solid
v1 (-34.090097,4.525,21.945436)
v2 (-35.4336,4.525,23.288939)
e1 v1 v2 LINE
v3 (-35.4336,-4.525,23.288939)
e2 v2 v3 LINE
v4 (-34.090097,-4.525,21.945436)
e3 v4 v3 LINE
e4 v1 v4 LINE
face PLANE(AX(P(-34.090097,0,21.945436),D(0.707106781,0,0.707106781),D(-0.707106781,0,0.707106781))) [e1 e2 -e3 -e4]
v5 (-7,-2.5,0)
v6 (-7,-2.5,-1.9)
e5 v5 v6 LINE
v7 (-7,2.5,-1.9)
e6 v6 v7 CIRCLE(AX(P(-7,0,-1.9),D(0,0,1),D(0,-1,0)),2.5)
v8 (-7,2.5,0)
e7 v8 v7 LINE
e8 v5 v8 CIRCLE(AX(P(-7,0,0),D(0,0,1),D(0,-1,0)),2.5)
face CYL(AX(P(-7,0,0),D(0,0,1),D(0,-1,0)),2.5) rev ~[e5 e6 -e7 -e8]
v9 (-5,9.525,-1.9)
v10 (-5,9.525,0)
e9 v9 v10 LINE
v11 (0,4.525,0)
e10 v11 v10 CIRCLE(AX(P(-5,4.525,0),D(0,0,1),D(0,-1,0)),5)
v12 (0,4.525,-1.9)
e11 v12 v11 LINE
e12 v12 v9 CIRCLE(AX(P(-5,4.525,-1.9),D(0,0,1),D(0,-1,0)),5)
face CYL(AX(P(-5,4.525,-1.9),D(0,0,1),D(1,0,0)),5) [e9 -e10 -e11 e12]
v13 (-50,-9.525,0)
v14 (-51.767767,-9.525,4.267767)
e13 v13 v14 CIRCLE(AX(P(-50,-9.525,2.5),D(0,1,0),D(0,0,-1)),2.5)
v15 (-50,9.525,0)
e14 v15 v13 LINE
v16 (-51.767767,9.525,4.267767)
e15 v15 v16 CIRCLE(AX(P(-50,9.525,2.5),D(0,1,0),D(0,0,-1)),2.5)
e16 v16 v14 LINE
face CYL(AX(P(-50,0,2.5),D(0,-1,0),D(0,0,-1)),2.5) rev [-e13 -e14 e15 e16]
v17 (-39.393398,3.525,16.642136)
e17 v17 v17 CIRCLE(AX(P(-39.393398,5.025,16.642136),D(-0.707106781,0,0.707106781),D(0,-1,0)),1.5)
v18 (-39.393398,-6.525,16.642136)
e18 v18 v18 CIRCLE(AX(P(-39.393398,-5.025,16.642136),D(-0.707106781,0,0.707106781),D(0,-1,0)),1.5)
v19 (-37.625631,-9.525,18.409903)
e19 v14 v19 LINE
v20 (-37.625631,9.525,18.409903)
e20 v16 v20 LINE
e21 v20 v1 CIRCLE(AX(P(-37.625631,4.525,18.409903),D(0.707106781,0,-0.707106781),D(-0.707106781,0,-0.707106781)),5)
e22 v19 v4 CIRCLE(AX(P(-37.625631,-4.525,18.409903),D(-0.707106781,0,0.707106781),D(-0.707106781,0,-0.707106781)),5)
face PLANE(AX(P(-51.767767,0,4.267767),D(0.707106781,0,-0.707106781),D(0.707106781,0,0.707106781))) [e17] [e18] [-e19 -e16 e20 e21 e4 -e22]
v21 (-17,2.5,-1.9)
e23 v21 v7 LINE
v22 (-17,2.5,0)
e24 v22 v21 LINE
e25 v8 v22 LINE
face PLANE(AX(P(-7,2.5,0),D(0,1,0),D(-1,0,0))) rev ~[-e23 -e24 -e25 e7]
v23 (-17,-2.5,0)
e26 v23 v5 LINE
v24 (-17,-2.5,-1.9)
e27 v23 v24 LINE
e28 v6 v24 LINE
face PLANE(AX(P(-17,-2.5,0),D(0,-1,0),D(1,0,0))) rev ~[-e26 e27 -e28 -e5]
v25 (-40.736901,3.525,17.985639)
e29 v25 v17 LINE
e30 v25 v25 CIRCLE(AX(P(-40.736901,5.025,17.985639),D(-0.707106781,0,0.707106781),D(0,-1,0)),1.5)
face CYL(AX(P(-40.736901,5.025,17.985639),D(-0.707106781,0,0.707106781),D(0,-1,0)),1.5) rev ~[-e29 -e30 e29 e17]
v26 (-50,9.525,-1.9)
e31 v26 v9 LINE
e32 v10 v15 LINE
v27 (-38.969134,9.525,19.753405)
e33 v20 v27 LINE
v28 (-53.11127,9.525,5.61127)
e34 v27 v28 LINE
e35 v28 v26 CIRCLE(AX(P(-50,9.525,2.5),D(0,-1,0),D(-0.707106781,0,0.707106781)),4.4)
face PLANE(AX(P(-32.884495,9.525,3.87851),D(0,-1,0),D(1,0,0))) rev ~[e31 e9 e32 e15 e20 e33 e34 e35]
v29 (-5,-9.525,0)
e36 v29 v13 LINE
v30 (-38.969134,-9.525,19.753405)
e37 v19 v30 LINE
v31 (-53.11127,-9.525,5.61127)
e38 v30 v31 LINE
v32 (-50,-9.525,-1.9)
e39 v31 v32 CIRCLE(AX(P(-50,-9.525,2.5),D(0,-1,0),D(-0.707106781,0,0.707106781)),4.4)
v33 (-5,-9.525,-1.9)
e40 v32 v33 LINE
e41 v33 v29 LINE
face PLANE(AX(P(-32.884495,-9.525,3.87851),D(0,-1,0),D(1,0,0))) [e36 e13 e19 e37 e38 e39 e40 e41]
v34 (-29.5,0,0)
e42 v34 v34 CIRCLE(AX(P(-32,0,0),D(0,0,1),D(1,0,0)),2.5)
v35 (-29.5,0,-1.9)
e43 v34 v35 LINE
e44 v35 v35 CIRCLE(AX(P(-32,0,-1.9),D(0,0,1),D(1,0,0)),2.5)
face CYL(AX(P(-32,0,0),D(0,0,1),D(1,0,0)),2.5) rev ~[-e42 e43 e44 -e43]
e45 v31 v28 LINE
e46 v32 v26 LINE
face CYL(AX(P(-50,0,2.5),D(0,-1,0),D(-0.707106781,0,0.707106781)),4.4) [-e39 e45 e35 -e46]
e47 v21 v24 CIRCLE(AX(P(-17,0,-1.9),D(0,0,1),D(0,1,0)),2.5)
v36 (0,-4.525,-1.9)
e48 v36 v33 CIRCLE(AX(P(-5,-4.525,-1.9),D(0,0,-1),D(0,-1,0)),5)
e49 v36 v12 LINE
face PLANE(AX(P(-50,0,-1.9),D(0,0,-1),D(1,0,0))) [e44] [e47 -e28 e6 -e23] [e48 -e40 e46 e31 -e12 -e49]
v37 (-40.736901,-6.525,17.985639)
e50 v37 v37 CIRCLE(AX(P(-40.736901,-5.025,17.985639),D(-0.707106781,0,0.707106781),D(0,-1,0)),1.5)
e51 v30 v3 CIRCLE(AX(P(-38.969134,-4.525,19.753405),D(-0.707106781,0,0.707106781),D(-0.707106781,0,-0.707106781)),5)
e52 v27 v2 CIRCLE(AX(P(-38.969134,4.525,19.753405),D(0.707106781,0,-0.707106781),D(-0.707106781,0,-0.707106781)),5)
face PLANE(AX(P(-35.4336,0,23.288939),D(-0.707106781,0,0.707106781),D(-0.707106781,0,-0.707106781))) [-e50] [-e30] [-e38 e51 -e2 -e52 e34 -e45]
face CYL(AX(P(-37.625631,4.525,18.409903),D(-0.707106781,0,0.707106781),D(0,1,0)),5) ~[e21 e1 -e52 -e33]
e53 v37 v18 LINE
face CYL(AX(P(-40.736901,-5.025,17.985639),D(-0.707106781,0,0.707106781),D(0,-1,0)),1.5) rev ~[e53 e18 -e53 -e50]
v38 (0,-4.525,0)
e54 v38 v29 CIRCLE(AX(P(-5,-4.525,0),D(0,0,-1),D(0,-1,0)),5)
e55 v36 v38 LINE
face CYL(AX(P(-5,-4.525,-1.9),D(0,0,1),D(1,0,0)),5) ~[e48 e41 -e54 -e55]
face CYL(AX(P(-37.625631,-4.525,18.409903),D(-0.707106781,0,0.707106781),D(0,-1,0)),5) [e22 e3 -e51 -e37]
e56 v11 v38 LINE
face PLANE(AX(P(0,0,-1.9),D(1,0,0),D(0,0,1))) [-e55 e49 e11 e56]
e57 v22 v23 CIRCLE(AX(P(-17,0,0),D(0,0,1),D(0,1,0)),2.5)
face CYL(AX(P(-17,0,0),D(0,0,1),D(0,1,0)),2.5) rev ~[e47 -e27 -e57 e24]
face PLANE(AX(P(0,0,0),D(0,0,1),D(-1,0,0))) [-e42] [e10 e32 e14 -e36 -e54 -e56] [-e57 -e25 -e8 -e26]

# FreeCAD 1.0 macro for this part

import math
import FreeCAD as App
import Part
import Sketcher

V = App.Vector
Q = App.Units.Quantity


def edges_at(feature, points):
    """Names of the edges that pass closest to the given points."""
    edges = feature.Shape.Edges
    near = lambda p: min(range(len(edges)), key=lambda i: edges[i].distToShape(Part.Vertex(*p))[0])
    return sorted({f"Edge{near(p) + 1}" for p in points})

doc = App.newDocument("Part")
params = doc.addObject("Spreadsheet::Sheet", "Params")
for row, (alias, value) in enumerate([
    ("sketch1_radius", "2.5 mm"),
    ("sketch1_radius2", "4.4 mm"),
    ("sketch1_width", "50 mm"),
    ("sketch1_length", "25 mm"),
    ("pad1_length", "19.05 mm"),
    ("sketch2_diameter", "5 mm"),
    ("sketch2_width", "10 mm"),
    ("pocket1_length", "25 mm"),
    ("sketch3_diameter", "3 mm"),
    ("pocket2_length", "1.9 mm"),
    ("fillet_radius", "5 mm"),
], start=1):
    params.set(f"A{row}", alias)
    params.set(f"B{row}", "=" + value)
    params.setAlias(f"B{row}", alias)

body = doc.addObject("PartDesign::Body", "Body")

sketch1 = body.newObject("Sketcher::SketchObject", "Sketch")
sketch1.AttachmentSupport = (doc.getObject("XZ_Plane"), [""])
sketch1.MapMode = "FlatFace"
sketch1.addGeometry([
    Part.LineSegment(V(0, -1.9, 0), V(0, 0, 0)),
    Part.LineSegment(V(0, 0, 0), V(-50, 0, 0)),
    Part.ArcOfCircle(Part.Circle(V(-50, 2.5, 0), V(0, 0, 1), 2.5), math.radians(135), math.radians(270)),
    Part.LineSegment(V(-51.8, 4.3, 0), V(-34.1, 21.9, 0)),
    Part.LineSegment(V(-34.1, 21.9, 0), V(-35.4, 23.3, 0)),
    Part.LineSegment(V(-35.4, 23.3, 0), V(-53.1, 5.6, 0)),
    Part.ArcOfCircle(Part.Circle(V(-50, 2.5, 0), V(0, 0, 1), 4.4), math.radians(135), math.radians(270)),
    Part.LineSegment(V(-50, -1.9, 0), V(0, -1.9, 0)),
], False)
sketch1.addConstraint([
    Sketcher.Constraint("Coincident", 0, 2, 1, 1),
    Sketcher.Constraint("Tangent", 1, 2, 2, 2),
    Sketcher.Constraint("Tangent", 2, 1, 3, 1),
    Sketcher.Constraint("Coincident", 3, 2, 4, 1),
    Sketcher.Constraint("Coincident", 4, 2, 5, 1),
    Sketcher.Constraint("Tangent", 5, 2, 6, 1),
    Sketcher.Constraint("Tangent", 6, 2, 7, 1),
    Sketcher.Constraint("Coincident", 7, 2, 0, 1),
    Sketcher.Constraint("Vertical", 0),
    Sketcher.Constraint("Horizontal", 1),
    Sketcher.Constraint("Horizontal", 7),
    Sketcher.Constraint("Coincident", 0, 2, -1, 1),
    Sketcher.Constraint("Coincident", 6, 3, 2, 3),
    Sketcher.Constraint("Perpendicular", 3, 4),
    Sketcher.Constraint("Perpendicular", 4, 5),
    Sketcher.Constraint("Radius", 2, 2.5),
    Sketcher.Constraint("Radius", 6, 4.4),
    Sketcher.Constraint("DistanceX", 1, 2, 1, 1, 50.0),
    Sketcher.Constraint("Angle", 3, Q("45 deg")),
    Sketcher.Constraint("Distance", 3, 25.0),
])
sketch1.setExpression("Constraints[15]", "Params.sketch1_radius")
sketch1.setExpression("Constraints[16]", "Params.sketch1_radius2")
sketch1.setExpression("Constraints[17]", "Params.sketch1_width")
sketch1.setExpression("Constraints[19]", "Params.sketch1_length")
pad1 = body.newObject("PartDesign::Pad", "Pad")
pad1.Profile = sketch1
pad1.setExpression("Length", "Params.pad1_length")
pad1.Midplane = True

sketch2 = body.newObject("Sketcher::SketchObject", "Sketch001")
sketch2.AttachmentSupport = (doc.getObject("XY_Plane"), [""])
sketch2.MapMode = "FlatFace"
sketch2.addGeometry([
    Part.Circle(V(-32, 0, 0), V(0, 0, 1), 2.5),
    Part.LineSegment(V(-17, -2.5, 0), V(-7, -2.5, 0)),
    Part.ArcOfCircle(Part.Circle(V(-7, 0, 0), V(0, 0, 1), 2.5), math.radians(-90), math.radians(90)),
    Part.LineSegment(V(-7, 2.5, 0), V(-17, 2.5, 0)),
    Part.ArcOfCircle(Part.Circle(V(-17, 0, 0), V(0, 0, 1), 2.5), math.radians(90), math.radians(270)),
], False)
sketch2.addConstraint([
    Sketcher.Constraint("Tangent", 1, 2, 2, 1),
    Sketcher.Constraint("Tangent", 2, 2, 3, 1),
    Sketcher.Constraint("Tangent", 3, 2, 4, 1),
    Sketcher.Constraint("Tangent", 4, 2, 1, 1),
    Sketcher.Constraint("Horizontal", 1),
    Sketcher.Constraint("Horizontal", 3),
    Sketcher.Constraint("Equal", 0, 2),
    Sketcher.Constraint("PointOnObject", 0, 3, -1),
    Sketcher.Constraint("PointOnObject", 2, 3, -1),
    Sketcher.Constraint("Diameter", 0, 5.0),
    Sketcher.Constraint("DistanceX", 1, 1, 1, 2, 10.0),
    Sketcher.Constraint("DistanceX", 0, 3, -1, 1, 32.0),
    Sketcher.Constraint("DistanceX", 2, 3, -1, 1, 7.0),
])
sketch2.setExpression("Constraints[9]", "Params.sketch2_diameter")
sketch2.setExpression("Constraints[10]", "Params.sketch2_width")
pocket1 = body.newObject("PartDesign::Pocket", "Pocket")
pocket1.Profile = sketch2
pocket1.setExpression("Length", "Params.pocket1_length")

sketch3 = body.newObject("Sketcher::SketchObject", "Sketch002")
sketch3.Placement = App.Placement(V(-29.36127, 0, 29.36127), App.Rotation(V(0, -1, 0), V(0.707106781, 0, 0.707106781), V(-0.707106781, 0, 0.707106781), "ZXY"))
sketch3.addGeometry([
    Part.Circle(V(-5, -16.1, 0), V(0, 0, 1), 1.5),
    Part.Circle(V(5, -16.1, 0), V(0, 0, 1), 1.5),
], False)
sketch3.addConstraint([
    Sketcher.Constraint("Equal", 0, 1),
    Sketcher.Constraint("Symmetric", 0, 3, 1, 3, -2),
    Sketcher.Constraint("Diameter", 0, 3.0),
    Sketcher.Constraint("DistanceX", 0, 3, 1, 3, 10.05),
    Sketcher.Constraint("DistanceY", 0, 3, -1, 1, 16.087572),
])
sketch3.setExpression("Constraints[2]", "Params.sketch3_diameter")
pocket2 = body.newObject("PartDesign::Pocket", "Pocket001")
pocket2.Profile = sketch3
pocket2.setExpression("Length", "Params.pocket2_length")
doc.recompute()

fillet = body.newObject("PartDesign::Fillet", "Fillet")
fillet.Base = (pocket2, edges_at(pocket2, [
    (-34.762, -9.525, 22.617),
    (-34.762, 9.525, 22.617),
    (0, -9.525, -0.95),
    (0, 9.525, -0.95),
]))
fillet.setExpression("Radius", "Params.fillet_radius")

doc.recompute()
